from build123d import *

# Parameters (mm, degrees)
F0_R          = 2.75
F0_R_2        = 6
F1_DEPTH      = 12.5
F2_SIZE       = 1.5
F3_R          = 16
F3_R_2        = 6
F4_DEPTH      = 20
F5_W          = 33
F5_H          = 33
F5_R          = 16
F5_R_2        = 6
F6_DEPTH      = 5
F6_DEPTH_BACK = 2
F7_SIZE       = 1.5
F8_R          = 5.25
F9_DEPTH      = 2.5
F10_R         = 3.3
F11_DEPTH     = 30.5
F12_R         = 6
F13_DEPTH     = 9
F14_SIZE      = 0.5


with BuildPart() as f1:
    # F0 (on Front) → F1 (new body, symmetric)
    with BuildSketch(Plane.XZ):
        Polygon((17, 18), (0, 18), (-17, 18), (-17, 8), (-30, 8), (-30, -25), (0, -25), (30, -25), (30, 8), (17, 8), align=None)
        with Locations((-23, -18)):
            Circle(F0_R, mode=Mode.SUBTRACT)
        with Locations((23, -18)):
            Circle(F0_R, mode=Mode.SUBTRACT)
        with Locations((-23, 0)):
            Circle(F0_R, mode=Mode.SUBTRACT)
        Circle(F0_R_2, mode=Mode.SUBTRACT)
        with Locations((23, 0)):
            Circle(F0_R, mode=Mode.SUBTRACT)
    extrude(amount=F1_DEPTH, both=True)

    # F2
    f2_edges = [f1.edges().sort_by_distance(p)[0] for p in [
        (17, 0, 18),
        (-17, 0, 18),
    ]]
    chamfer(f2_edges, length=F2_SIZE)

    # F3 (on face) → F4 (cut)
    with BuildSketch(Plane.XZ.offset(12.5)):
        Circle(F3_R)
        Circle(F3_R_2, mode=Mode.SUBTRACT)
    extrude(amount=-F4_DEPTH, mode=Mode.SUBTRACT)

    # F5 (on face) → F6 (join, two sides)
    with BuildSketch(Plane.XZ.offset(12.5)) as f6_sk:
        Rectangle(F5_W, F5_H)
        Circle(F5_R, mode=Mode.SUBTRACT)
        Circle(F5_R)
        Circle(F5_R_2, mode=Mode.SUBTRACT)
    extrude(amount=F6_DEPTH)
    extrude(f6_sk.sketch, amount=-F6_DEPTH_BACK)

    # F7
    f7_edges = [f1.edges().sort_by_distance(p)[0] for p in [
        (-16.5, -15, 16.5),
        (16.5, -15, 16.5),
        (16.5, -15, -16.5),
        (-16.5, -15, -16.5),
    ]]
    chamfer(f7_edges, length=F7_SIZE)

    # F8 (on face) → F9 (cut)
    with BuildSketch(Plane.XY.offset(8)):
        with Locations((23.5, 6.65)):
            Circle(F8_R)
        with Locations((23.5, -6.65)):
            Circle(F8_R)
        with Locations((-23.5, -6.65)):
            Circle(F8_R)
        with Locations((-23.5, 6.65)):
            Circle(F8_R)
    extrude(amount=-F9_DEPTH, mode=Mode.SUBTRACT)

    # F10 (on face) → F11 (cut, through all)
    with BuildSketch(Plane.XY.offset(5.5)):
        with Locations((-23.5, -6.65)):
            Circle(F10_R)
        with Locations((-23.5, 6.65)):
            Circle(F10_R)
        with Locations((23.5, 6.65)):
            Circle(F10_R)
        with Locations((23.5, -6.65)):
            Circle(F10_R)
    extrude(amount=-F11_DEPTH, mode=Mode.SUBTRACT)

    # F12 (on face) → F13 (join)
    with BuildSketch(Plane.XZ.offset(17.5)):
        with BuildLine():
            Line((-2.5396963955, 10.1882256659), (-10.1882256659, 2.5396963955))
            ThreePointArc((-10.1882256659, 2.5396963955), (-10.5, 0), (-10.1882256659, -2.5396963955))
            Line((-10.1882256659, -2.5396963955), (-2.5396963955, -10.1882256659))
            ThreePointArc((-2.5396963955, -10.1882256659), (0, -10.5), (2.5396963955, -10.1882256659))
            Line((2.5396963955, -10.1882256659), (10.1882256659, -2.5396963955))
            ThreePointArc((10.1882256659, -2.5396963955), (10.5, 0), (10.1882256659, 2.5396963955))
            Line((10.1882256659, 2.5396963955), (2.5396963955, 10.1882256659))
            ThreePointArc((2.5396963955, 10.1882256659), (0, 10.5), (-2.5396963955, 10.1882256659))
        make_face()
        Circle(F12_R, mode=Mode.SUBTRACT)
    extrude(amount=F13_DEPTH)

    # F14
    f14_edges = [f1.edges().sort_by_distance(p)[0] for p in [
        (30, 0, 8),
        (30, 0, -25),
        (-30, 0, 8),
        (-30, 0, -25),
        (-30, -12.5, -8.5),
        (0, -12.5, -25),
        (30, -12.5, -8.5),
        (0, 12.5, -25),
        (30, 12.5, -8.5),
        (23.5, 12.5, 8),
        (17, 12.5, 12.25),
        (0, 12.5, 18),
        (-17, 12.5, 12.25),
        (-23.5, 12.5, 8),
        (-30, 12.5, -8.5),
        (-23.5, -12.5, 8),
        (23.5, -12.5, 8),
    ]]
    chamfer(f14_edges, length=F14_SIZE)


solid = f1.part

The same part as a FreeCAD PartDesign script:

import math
import FreeCAD as App
import Part
import Sketcher
from FreeCAD import Vector
Q = App.Units.Quantity


def edges_at(feature, points):
    """Names of the edges that pass closest to the given points."""
    edges = feature.Shape.Edges
    near = lambda p: min(range(len(edges)), key=lambda i: edges[i].distToShape(Part.Vertex(*p))[0])
    return sorted({f"Edge{near(p) + 1}" for p in points})


def add_polygon(sketch, points):
    """Adds a closed chain of lines whose ends are joined by coincident constraints."""
    first, n = sketch.GeometryCount, len(points)
    for a, b in zip(points, points[1:] + points[:1]):
        sketch.addGeometry(Part.LineSegment(App.Vector(*a, 0), App.Vector(*b, 0)), False)
    for i in range(n):
        sketch.addConstraint(Sketcher.Constraint("Coincident", first + i, 2, first + (i + 1) % n, 1))

doc = App.newDocument("Part")
body = doc.addObject("PartDesign::Body", "Body")

sketch1 = doc.addObject("Sketcher::SketchObject", "Sketch")
body.addObject(sketch1)
sketch1.AttachmentSupport = (doc.XZ_Plane, [""])
sketch1.MapMode = "FlatFace"
add_polygon(sketch1, [(17, 18), (-17, 18), (-17, 8), (-30, 8), (-30, -25), (30, -25), (30, 8), (17, 8)])
sketch1.addGeometry(Part.Circle(Vector(-23, -18, 0), Vector(0, 0, 1), 2.8), False)
sketch1.addGeometry(Part.Circle(Vector(23, -18, 0), Vector(0, 0, 1), 2.8), False)
sketch1.addGeometry(Part.Circle(Vector(-23, 0, 0), Vector(0, 0, 1), 2.8), False)
sketch1.addGeometry(Part.Circle(Vector(0, 0, 0), Vector(0, 0, 1), 6), False)
sketch1.addGeometry(Part.Circle(Vector(23, 0, 0), Vector(0, 0, 1), 2.8), False)
sketch1.addConstraint([
    Sketcher.Constraint("Horizontal", 0),
    Sketcher.Constraint("Vertical", 1),
    Sketcher.Constraint("Horizontal", 2),
    Sketcher.Constraint("Vertical", 3),
    Sketcher.Constraint("Horizontal", 4),
    Sketcher.Constraint("Vertical", 5),
    Sketcher.Constraint("Horizontal", 6),
    Sketcher.Constraint("Vertical", 7),
    Sketcher.Constraint("Coincident", 11, 3, -1, 1),
    Sketcher.Constraint("Equal", 8, 9),
    Sketcher.Constraint("Equal", 9, 10),
    Sketcher.Constraint("Equal", 10, 12),
    Sketcher.Constraint("Symmetric", 10, 3, 12, 3, -1, 1),
    Sketcher.Constraint("Symmetric", 8, 3, 9, 3, -2),
    Sketcher.Constraint("Symmetric", 2, 2, 5, 2, -2),
    Sketcher.Constraint("PointOnObject", 10, 3, -1),
    Sketcher.Constraint("Vertical", 8, 3, 10, 3),
    Sketcher.Constraint("Equal", 2, 6),
    Sketcher.Constraint("Diameter", 11, Q("12 mm")),
    Sketcher.Constraint("Diameter", 8, Q("5.5 mm")),
    Sketcher.Constraint("DistanceX", 0, 2, 0, 1, Q("34 mm")),
    Sketcher.Constraint("DistanceX", 2, 2, 2, 1, Q("13 mm")),
    Sketcher.Constraint("DistanceY", 1, 2, 1, 1, Q("10 mm")),
    Sketcher.Constraint("DistanceY", 3, 2, 3, 1, Q("33 mm")),
    Sketcher.Constraint("DistanceX", 8, 3, -1, 1, Q("23 mm")),
    Sketcher.Constraint("DistanceY", 8, 3, -1, 1, Q("18 mm")),
    Sketcher.Constraint("DistanceY", -1, 1, 0, 2, Q("18 mm")),
])
pad1 = doc.addObject("PartDesign::Pad", "Pad")
body.addObject(pad1)
pad1.Profile = sketch1
pad1.Length = 25
pad1.Midplane = True
doc.recompute()

chamfer = doc.addObject("PartDesign::Chamfer", "Chamfer")
body.addObject(chamfer)
chamfer.Base = (pad1, edges_at(pad1, [(17, 0, 18), (-17, 0, 18)]))
chamfer.Size = 1.5

sketch2 = doc.addObject("Sketcher::SketchObject", "Sketch001")
body.addObject(sketch2)
sketch2.AttachmentSupport = (doc.XZ_Plane, [""])
sketch2.MapMode = "FlatFace"
sketch2.AttachmentOffset = App.Placement(Vector(0, 0, 12.5), App.Rotation())
sketch2.addGeometry([
    Part.Circle(Vector(0, 0, 0), Vector(0, 0, 1), 16),
    Part.Circle(Vector(0, 0, 0), Vector(0, 0, 1), 6),
], False)
sketch2.addConstraint([
    Sketcher.Constraint("Coincident", 0, 3, -1, 1),
    Sketcher.Constraint("Coincident", 1, 3, -1, 1),
    Sketcher.Constraint("Diameter", 0, Q("32 mm")),
    Sketcher.Constraint("Diameter", 1, Q("12 mm")),
])
pocket1 = doc.addObject("PartDesign::Pocket", "Pocket")
body.addObject(pocket1)
pocket1.Profile = sketch2
pocket1.Length = 20

sketch3 = doc.addObject("Sketcher::SketchObject", "Sketch002")
body.addObject(sketch3)
sketch3.AttachmentSupport = (doc.XZ_Plane, [""])
sketch3.MapMode = "FlatFace"
sketch3.AttachmentOffset = App.Placement(Vector(0, 0, 12.5), App.Rotation())
add_polygon(sketch3, [(-16, 16), (-16, -16), (16, -16), (16, 16)])
sketch3.addGeometry(Part.Circle(Vector(0, 0, 0), Vector(0, 0, 1), 6), False)
sketch3.addConstraint([
    Sketcher.Constraint("Vertical", 0),
    Sketcher.Constraint("Horizontal", 1),
    Sketcher.Constraint("Vertical", 2),
    Sketcher.Constraint("Horizontal", 3),
    Sketcher.Constraint("Coincident", 4, 3, -1, 1),
    Sketcher.Constraint("Symmetric", 0, 2, 2, 2, -1, 1),
    Sketcher.Constraint("Equal", 3, 0),
    Sketcher.Constraint("Diameter", 4, Q("12 mm")),
    Sketcher.Constraint("DistanceX", 1, 1, 1, 2, Q("33 mm")),
])
pad2 = doc.addObject("PartDesign::Pad", "Pad001")
body.addObject(pad2)
pad2.Profile = sketch3
pad2.Type = "TwoLengths"
pad2.Length = 5
pad2.Length2 = 2
doc.recompute()

chamfer2 = doc.addObject("PartDesign::Chamfer", "Chamfer001")
body.addObject(chamfer2)
chamfer2.Base = (pad2, edges_at(pad2, [
    (-16.5, -15, 16.5),
    (16.5, -15, 16.5),
    (16.5, -15, -16.5),
    (-16.5, -15, -16.5),
]))
chamfer2.Size = 1.5

sketch4 = doc.addObject("Sketcher::SketchObject", "Sketch003")
body.addObject(sketch4)
sketch4.AttachmentSupport = (doc.XY_Plane, [""])
sketch4.MapMode = "FlatFace"
sketch4.AttachmentOffset = App.Placement(Vector(0, 0, 8), App.Rotation())
sketch4.addGeometry([
    Part.Circle(Vector(24, 7, 0), Vector(0, 0, 1), 5),
    Part.Circle(Vector(24, -7, 0), Vector(0, 0, 1), 5),
    Part.Circle(Vector(-24, -7, 0), Vector(0, 0, 1), 5),
    Part.Circle(Vector(-24, 7, 0), Vector(0, 0, 1), 5),
], False)
sketch4.addConstraint([
    Sketcher.Constraint("Equal", 0, 1),
    Sketcher.Constraint("Equal", 1, 2),
    Sketcher.Constraint("Equal", 2, 3),
    Sketcher.Constraint("Symmetric", 0, 3, 2, 3, -1, 1),
    Sketcher.Constraint("Symmetric", 1, 3, 3, 3, -1, 1),
    Sketcher.Constraint("Symmetric", 1, 3, 2, 3, -2),
    Sketcher.Constraint("Diameter", 0, Q("10.5 mm")),
    Sketcher.Constraint("DistanceX", 2, 3, 1, 3, Q("47 mm")),
    Sketcher.Constraint("DistanceY", 1, 3, 0, 3, Q("13.3 mm")),
])
pocket2 = doc.addObject("PartDesign::Pocket", "Pocket001")
body.addObject(pocket2)
pocket2.Profile = sketch4
pocket2.Length = 2.5

sketch5 = doc.addObject("Sketcher::SketchObject", "Sketch004")
body.addObject(sketch5)
sketch5.AttachmentSupport = (doc.XY_Plane, [""])
sketch5.MapMode = "FlatFace"
sketch5.AttachmentOffset = App.Placement(Vector(0, 0, 5.5), App.Rotation())
sketch5.addGeometry([
    Part.Circle(Vector(-23.5, -6.7, 0), Vector(0, 0, 1), 3.3),
    Part.Circle(Vector(-23.5, 6.7, 0), Vector(0, 0, 1), 3.3),
    Part.Circle(Vector(23.5, 6.7, 0), Vector(0, 0, 1), 3.3),
    Part.Circle(Vector(23.5, -6.7, 0), Vector(0, 0, 1), 3.3),
], False)
sketch5.addConstraint([
    Sketcher.Constraint("Equal", 0, 1),
    Sketcher.Constraint("Equal", 1, 2),
    Sketcher.Constraint("Equal", 2, 3),
    Sketcher.Constraint("Symmetric", 0, 3, 2, 3, -1, 1),
    Sketcher.Constraint("Symmetric", 1, 3, 3, 3, -1, 1),
    Sketcher.Constraint("Symmetric", 1, 3, 2, 3, -2),
    Sketcher.Constraint("Diameter", 0, Q("6.6 mm")),
    Sketcher.Constraint("DistanceX", 1, 3, 2, 3, Q("47 mm")),
    Sketcher.Constraint("DistanceY", 0, 3, 1, 3, Q("13.3 mm")),
])
pocket3 = doc.addObject("PartDesign::Pocket", "Pocket002")
body.addObject(pocket3)
pocket3.Profile = sketch5
pocket3.Type = "ThroughAll"

sketch6 = doc.addObject("Sketcher::SketchObject", "Sketch005")
body.addObject(sketch6)
sketch6.AttachmentSupport = (doc.XZ_Plane, [""])
sketch6.MapMode = "FlatFace"
sketch6.AttachmentOffset = App.Placement(Vector(0, 0, 17.5), App.Rotation())
sketch6.addGeometry([
    Part.LineSegment(Vector(-3, 10, 0), Vector(-10, 3, 0)),
    Part.ArcOfCircle(Part.Circle(Vector(0, 0, 0), Vector(0, 0, 1), 11), math.radians(166), math.radians(194)),
    Part.LineSegment(Vector(-10, -3, 0), Vector(-3, -10, 0)),
    Part.ArcOfCircle(Part.Circle(Vector(0, 0, 0), Vector(0, 0, 1), 11), math.radians(-104), math.radians(-76)),
    Part.LineSegment(Vector(3, -10, 0), Vector(10, -3, 0)),
    Part.ArcOfCircle(Part.Circle(Vector(0, 0, 0), Vector(0, 0, 1), 11), math.radians(-14), math.radians(14)),
    Part.LineSegment(Vector(10, 3, 0), Vector(3, 10, 0)),
    Part.ArcOfCircle(Part.Circle(Vector(0, 0, 0), Vector(0, 0, 1), 11), math.radians(76), math.radians(104)),
    Part.Circle(Vector(0, 0, 0), Vector(0, 0, 1), 6),
], False)
sketch6.addConstraint([
    Sketcher.Constraint("Coincident", 0, 2, 1, 1),
    Sketcher.Constraint("Coincident", 1, 2, 2, 1),
    Sketcher.Constraint("Coincident", 2, 2, 3, 1),
    Sketcher.Constraint("Coincident", 3, 2, 4, 1),
    Sketcher.Constraint("Coincident", 4, 2, 5, 1),
    Sketcher.Constraint("Coincident", 5, 2, 6, 1),
    Sketcher.Constraint("Coincident", 6, 2, 7, 1),
    Sketcher.Constraint("Coincident", 7, 2, 0, 1),
    Sketcher.Constraint("Coincident", 1, 3, -1, 1),
    Sketcher.Constraint("Coincident", 3, 3, -1, 1),
    Sketcher.Constraint("Coincident", 5, 3, -1, 1),
    Sketcher.Constraint("Coincident", 7, 3, -1, 1),
    Sketcher.Constraint("Coincident", 8, 3, -1, 1),
    Sketcher.Constraint("Equal", 1, 3),
    Sketcher.Constraint("Equal", 3, 5),
    Sketcher.Constraint("Equal", 5, 7),
    Sketcher.Constraint("Perpendicular", 0, 2),
    Sketcher.Constraint("Perpendicular", 2, 4),
    Sketcher.Constraint("Perpendicular", 4, 6),
    Sketcher.Constraint("Horizontal", 2, 2, 3, 2),
    Sketcher.Constraint("Horizontal", 1, 2, 4, 2),
    Sketcher.Constraint("Horizontal", 0, 2, 5, 2),
    Sketcher.Constraint("Vertical", 0, 2, 1, 2),
    Sketcher.Constraint("Diameter", 8, Q("12 mm")),
    Sketcher.Constraint("Radius", 1, Q("10.5 mm")),
    Sketcher.Constraint("Distance", 0, Q("10.816654 mm")),
])
pad3 = doc.addObject("PartDesign::Pad", "Pad002")
body.addObject(pad3)
pad3.Profile = sketch6
pad3.Length = 9
doc.recompute()

chamfer3 = doc.addObject("PartDesign::Chamfer", "Chamfer002")
body.addObject(chamfer3)
chamfer3.Base = (pad3, edges_at(pad3, [
    (30, 0, 8),
    (30, 0, -25),
    (-30, 0, 8),
    (-30, 0, -25),
    (-30, -12.5, -8.5),
    (0, -12.5, -25),
    (30, -12.5, -8.5),
    (0, 12.5, -25),
    (30, 12.5, -8.5),
    (23.5, 12.5, 8),
    (17, 12.5, 12.25),
    (0, 12.5, 18),
    (-17, 12.5, 12.25),
    (-23.5, 12.5, 8),
    (-30, 12.5, -8.5),
    (-23.5, -12.5, 8),
    (23.5, -12.5, 8),
]))
chamfer3.Size = 0.5

doc.recompute()
